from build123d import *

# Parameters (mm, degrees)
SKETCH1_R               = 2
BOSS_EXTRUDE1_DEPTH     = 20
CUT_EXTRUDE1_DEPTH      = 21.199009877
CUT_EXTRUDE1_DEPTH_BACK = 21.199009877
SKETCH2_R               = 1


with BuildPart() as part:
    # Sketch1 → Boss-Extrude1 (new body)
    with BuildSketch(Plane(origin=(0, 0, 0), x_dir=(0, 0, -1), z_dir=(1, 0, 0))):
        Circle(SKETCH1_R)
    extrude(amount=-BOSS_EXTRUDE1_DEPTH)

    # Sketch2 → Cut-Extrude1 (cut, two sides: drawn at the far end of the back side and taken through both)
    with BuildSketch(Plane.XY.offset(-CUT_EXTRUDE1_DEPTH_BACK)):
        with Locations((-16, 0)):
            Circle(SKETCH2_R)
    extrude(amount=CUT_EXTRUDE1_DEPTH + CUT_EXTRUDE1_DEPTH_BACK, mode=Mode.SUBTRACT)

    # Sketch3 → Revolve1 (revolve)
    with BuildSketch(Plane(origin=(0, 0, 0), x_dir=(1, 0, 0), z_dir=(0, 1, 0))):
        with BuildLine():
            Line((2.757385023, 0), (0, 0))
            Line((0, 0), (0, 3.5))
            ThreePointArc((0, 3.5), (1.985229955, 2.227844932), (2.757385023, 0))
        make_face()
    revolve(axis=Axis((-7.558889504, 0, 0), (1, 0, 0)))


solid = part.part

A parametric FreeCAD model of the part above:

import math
import FreeCAD as App
import Part
import Sketcher

doc = App.newDocument("Part")
body = doc.addObject("PartDesign::Body", "Body")

sketch1 = body.newObject("Sketcher::SketchObject", "Sketch")
sketch1.AttachmentSupport = (doc.getObject("YZ_Plane"), [""])
sketch1.MapMode = "FlatFace"
sketch1.addGeometry(Part.Circle(App.Vector(0, 0, 0), App.Vector(0, 0, 1), 2), False)
sketch1.addConstraint([
    Sketcher.Constraint("Coincident", 0, 3, -1, 1),
    Sketcher.Constraint("Diameter", 0, 4.0),
])
pad1 = body.newObject("PartDesign::Pad", "Pad")
pad1.Profile = sketch1
pad1.Length = 20
pad1.Reversed = True

sketch2 = body.newObject("Sketcher::SketchObject", "Sketch001")
sketch2.AttachmentSupport = (doc.getObject("XY_Plane"), [""])
sketch2.MapMode = "FlatFace"
sketch2.addGeometry(Part.Circle(App.Vector(-16, 0, 0), App.Vector(0, 0, 1), 1), False)
sketch2.addConstraint([
    Sketcher.Constraint("PointOnObject", 0, 3, -1),
    Sketcher.Constraint("Diameter", 0, 2.0),
    Sketcher.Constraint("DistanceX", 0, 3, -1, 1, 16.0),
])
pocket1 = body.newObject("PartDesign::Pocket", "Pocket")
pocket1.Profile = sketch2
pocket1.Type = "ThroughAll"
pocket1.Midplane = True

sketch3 = body.newObject("Sketcher::SketchObject", "Sketch002")
sketch3.AttachmentSupport = (doc.getObject("XZ_Plane"), [""])
sketch3.MapMode = "FlatFace"
sketch3.addGeometry([
    Part.LineSegment(App.Vector(0, 0, 0), App.Vector(2.757385, 0, 0)),
    Part.ArcOfCircle(Part.Circle(App.Vector(-0.842615, 0, 0), App.Vector(0, 0, 1), 3.6), math.radians(-76.463797), math.radians(0)),
    Part.LineSegment(App.Vector(0, -3.5, 0), App.Vector(0, 0, 0)),
], False)
sketch3.addConstraint([
    Sketcher.Constraint("Coincident", 0, 2, 1, 2),
    Sketcher.Constraint("Coincident", 1, 1, 2, 1),
    Sketcher.Constraint("Coincident", 2, 2, 0, 1),
    Sketcher.Constraint("Horizontal", 0),
    Sketcher.Constraint("Vertical", 2),
    Sketcher.Constraint("Coincident", 2, 2, -1, 1),
    Sketcher.Constraint("PointOnObject", 1, 3, -1),
    Sketcher.Constraint("Radius", 1, 3.6),
    Sketcher.Constraint("DistanceY", 2, 1, 2, 2, 3.5),
])
revolution = body.newObject("PartDesign::Revolution", "Revolution")
revolution.Profile = sketch3
revolution.ReferenceAxis = (sketch3, ["H_Axis"])
revolution.Angle = 360

doc.recompute()
